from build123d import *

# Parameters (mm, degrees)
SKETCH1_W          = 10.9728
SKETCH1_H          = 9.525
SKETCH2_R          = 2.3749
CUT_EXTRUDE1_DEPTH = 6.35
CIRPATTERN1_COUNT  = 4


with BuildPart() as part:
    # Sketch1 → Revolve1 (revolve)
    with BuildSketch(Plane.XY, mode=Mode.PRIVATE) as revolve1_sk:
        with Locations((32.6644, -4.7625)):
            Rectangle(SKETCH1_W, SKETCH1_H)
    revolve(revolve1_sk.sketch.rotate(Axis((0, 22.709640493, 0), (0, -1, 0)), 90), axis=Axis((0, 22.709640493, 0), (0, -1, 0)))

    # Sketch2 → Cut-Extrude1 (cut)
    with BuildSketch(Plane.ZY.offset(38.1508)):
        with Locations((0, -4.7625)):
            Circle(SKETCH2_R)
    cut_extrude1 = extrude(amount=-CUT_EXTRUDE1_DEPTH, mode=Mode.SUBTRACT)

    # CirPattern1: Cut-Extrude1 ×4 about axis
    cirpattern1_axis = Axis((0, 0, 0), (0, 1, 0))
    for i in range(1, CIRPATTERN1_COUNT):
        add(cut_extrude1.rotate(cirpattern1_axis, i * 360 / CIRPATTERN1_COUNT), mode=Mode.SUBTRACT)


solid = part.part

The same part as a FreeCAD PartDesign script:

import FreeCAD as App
import Part
import Sketcher
from FreeCAD import Vector
Q = App.Units.Quantity

doc = App.newDocument("Part")
params = doc.addObject("Spreadsheet::Sheet", "Params")
for row, (alias, value) in enumerate([
    ("sketch1_width", "0.432 in"),
    ("sketch1_height", "0.375 in"),
    ("revolution_angle", "360 deg"),
    ("sketch2_diameter", "0.187 in"),
    ("pocket1_length", "0.25 in"),
], start=1):
    params.set(f"A{row}", alias)
    params.set(f"B{row}", "=" + value)
    params.setAlias(f"B{row}", alias)

body = doc.addObject("PartDesign::Body", "Body")

# Sketch on XY plane
sketch1 = body.newObject("Sketcher::SketchObject", "Sketch")
sketch1.AttachmentSupport = (doc.getObject("XY_Plane"), [""])
sketch1.MapMode = "FlatFace"
sketch1.addGeometry(Part.LineSegment(Vector(27, 0, 0), Vector(27, -10, 0)), False)
sketch1.addGeometry(Part.LineSegment(Vector(27, -10, 0), Vector(38, -10, 0)), False)
sketch1.addGeometry(Part.LineSegment(Vector(38, -10, 0), Vector(38, 0, 0)), False)
sketch1.addGeometry(Part.LineSegment(Vector(38, 0, 0), Vector(27, 0, 0)), False)
sketch1.addConstraint(Sketcher.Constraint("Coincident", 0, 2, 1, 1))
sketch1.addConstraint(Sketcher.Constraint("Coincident", 1, 2, 2, 1))
sketch1.addConstraint(Sketcher.Constraint("Coincident", 2, 2, 3, 1))
sketch1.addConstraint(Sketcher.Constraint("Coincident", 3, 2, 0, 1))
sketch1.addConstraint(Sketcher.Constraint("Vertical", 0))
sketch1.addConstraint(Sketcher.Constraint("Horizontal", 1))
sketch1.addConstraint(Sketcher.Constraint("Vertical", 2))
sketch1.addConstraint(Sketcher.Constraint("Horizontal", 3))
sketch1.addConstraint(Sketcher.Constraint("PointOnObject", 2, 2, -1))
sketch1.addConstraint(Sketcher.Constraint("DistanceX", 1, 1, 1, 2, Q("0.432 in")))
sketch1.addConstraint(Sketcher.Constraint("DistanceY", 0, 2, 0, 1, Q("0.375 in")))
sketch1.addConstraint(Sketcher.Constraint("DistanceX", -1, 1, 0, 2, Q("1.07 in")))
sketch1.setExpression("Constraints[9]", "Params.sketch1_width")
sketch1.setExpression("Constraints[10]", "Params.sketch1_height")
revolution = body.newObject("PartDesign::Revolution", "Revolution")
revolution.Profile = sketch1
revolution.ReferenceAxis = (sketch1, ["V_Axis"])
revolution.setExpression("Angle", "Params.revolution_angle")

# Sketch on YZ plane
sketch2 = body.newObject("Sketcher::SketchObject", "Sketch001")
sketch2.AttachmentSupport = (doc.getObject("YZ_Plane"), [""])
sketch2.MapMode = "FlatFace"
sketch2.AttachmentOffset = App.Placement(Vector(0, 0, -1.502 * 25.4), App.Rotation())
sketch2.addGeometry(Part.Circle(Vector(-4.8, 0, 0), Vector(0, 0, 1), 2.4), False)
sketch2.addConstraint(Sketcher.Constraint("PointOnObject", 0, 3, -1))
sketch2.addConstraint(Sketcher.Constraint("Diameter", 0, Q("0.187 in")))
sketch2.addConstraint(Sketcher.Constraint("DistanceX", 0, 3, -1, 1, Q("0.1875 in")))
sketch2.setExpression("Constraints[1]", "Params.sketch2_diameter")
pocket1 = body.newObject("PartDesign::Pocket", "Pocket")
pocket1.Profile = sketch2
pocket1.setExpression("Length", "Params.pocket1_length")
pocket1.Reversed = True
doc.recompute()

polarpattern = body.newObject("PartDesign::PolarPattern", "PolarPattern")
polarpattern.Originals = [pocket1]
polarpattern.Axis = (doc.getObject("Y_Axis"), [""])
polarpattern.Angle = 360
polarpattern.Occurrences = 4
body.Tip = polarpattern

doc.recompute()
